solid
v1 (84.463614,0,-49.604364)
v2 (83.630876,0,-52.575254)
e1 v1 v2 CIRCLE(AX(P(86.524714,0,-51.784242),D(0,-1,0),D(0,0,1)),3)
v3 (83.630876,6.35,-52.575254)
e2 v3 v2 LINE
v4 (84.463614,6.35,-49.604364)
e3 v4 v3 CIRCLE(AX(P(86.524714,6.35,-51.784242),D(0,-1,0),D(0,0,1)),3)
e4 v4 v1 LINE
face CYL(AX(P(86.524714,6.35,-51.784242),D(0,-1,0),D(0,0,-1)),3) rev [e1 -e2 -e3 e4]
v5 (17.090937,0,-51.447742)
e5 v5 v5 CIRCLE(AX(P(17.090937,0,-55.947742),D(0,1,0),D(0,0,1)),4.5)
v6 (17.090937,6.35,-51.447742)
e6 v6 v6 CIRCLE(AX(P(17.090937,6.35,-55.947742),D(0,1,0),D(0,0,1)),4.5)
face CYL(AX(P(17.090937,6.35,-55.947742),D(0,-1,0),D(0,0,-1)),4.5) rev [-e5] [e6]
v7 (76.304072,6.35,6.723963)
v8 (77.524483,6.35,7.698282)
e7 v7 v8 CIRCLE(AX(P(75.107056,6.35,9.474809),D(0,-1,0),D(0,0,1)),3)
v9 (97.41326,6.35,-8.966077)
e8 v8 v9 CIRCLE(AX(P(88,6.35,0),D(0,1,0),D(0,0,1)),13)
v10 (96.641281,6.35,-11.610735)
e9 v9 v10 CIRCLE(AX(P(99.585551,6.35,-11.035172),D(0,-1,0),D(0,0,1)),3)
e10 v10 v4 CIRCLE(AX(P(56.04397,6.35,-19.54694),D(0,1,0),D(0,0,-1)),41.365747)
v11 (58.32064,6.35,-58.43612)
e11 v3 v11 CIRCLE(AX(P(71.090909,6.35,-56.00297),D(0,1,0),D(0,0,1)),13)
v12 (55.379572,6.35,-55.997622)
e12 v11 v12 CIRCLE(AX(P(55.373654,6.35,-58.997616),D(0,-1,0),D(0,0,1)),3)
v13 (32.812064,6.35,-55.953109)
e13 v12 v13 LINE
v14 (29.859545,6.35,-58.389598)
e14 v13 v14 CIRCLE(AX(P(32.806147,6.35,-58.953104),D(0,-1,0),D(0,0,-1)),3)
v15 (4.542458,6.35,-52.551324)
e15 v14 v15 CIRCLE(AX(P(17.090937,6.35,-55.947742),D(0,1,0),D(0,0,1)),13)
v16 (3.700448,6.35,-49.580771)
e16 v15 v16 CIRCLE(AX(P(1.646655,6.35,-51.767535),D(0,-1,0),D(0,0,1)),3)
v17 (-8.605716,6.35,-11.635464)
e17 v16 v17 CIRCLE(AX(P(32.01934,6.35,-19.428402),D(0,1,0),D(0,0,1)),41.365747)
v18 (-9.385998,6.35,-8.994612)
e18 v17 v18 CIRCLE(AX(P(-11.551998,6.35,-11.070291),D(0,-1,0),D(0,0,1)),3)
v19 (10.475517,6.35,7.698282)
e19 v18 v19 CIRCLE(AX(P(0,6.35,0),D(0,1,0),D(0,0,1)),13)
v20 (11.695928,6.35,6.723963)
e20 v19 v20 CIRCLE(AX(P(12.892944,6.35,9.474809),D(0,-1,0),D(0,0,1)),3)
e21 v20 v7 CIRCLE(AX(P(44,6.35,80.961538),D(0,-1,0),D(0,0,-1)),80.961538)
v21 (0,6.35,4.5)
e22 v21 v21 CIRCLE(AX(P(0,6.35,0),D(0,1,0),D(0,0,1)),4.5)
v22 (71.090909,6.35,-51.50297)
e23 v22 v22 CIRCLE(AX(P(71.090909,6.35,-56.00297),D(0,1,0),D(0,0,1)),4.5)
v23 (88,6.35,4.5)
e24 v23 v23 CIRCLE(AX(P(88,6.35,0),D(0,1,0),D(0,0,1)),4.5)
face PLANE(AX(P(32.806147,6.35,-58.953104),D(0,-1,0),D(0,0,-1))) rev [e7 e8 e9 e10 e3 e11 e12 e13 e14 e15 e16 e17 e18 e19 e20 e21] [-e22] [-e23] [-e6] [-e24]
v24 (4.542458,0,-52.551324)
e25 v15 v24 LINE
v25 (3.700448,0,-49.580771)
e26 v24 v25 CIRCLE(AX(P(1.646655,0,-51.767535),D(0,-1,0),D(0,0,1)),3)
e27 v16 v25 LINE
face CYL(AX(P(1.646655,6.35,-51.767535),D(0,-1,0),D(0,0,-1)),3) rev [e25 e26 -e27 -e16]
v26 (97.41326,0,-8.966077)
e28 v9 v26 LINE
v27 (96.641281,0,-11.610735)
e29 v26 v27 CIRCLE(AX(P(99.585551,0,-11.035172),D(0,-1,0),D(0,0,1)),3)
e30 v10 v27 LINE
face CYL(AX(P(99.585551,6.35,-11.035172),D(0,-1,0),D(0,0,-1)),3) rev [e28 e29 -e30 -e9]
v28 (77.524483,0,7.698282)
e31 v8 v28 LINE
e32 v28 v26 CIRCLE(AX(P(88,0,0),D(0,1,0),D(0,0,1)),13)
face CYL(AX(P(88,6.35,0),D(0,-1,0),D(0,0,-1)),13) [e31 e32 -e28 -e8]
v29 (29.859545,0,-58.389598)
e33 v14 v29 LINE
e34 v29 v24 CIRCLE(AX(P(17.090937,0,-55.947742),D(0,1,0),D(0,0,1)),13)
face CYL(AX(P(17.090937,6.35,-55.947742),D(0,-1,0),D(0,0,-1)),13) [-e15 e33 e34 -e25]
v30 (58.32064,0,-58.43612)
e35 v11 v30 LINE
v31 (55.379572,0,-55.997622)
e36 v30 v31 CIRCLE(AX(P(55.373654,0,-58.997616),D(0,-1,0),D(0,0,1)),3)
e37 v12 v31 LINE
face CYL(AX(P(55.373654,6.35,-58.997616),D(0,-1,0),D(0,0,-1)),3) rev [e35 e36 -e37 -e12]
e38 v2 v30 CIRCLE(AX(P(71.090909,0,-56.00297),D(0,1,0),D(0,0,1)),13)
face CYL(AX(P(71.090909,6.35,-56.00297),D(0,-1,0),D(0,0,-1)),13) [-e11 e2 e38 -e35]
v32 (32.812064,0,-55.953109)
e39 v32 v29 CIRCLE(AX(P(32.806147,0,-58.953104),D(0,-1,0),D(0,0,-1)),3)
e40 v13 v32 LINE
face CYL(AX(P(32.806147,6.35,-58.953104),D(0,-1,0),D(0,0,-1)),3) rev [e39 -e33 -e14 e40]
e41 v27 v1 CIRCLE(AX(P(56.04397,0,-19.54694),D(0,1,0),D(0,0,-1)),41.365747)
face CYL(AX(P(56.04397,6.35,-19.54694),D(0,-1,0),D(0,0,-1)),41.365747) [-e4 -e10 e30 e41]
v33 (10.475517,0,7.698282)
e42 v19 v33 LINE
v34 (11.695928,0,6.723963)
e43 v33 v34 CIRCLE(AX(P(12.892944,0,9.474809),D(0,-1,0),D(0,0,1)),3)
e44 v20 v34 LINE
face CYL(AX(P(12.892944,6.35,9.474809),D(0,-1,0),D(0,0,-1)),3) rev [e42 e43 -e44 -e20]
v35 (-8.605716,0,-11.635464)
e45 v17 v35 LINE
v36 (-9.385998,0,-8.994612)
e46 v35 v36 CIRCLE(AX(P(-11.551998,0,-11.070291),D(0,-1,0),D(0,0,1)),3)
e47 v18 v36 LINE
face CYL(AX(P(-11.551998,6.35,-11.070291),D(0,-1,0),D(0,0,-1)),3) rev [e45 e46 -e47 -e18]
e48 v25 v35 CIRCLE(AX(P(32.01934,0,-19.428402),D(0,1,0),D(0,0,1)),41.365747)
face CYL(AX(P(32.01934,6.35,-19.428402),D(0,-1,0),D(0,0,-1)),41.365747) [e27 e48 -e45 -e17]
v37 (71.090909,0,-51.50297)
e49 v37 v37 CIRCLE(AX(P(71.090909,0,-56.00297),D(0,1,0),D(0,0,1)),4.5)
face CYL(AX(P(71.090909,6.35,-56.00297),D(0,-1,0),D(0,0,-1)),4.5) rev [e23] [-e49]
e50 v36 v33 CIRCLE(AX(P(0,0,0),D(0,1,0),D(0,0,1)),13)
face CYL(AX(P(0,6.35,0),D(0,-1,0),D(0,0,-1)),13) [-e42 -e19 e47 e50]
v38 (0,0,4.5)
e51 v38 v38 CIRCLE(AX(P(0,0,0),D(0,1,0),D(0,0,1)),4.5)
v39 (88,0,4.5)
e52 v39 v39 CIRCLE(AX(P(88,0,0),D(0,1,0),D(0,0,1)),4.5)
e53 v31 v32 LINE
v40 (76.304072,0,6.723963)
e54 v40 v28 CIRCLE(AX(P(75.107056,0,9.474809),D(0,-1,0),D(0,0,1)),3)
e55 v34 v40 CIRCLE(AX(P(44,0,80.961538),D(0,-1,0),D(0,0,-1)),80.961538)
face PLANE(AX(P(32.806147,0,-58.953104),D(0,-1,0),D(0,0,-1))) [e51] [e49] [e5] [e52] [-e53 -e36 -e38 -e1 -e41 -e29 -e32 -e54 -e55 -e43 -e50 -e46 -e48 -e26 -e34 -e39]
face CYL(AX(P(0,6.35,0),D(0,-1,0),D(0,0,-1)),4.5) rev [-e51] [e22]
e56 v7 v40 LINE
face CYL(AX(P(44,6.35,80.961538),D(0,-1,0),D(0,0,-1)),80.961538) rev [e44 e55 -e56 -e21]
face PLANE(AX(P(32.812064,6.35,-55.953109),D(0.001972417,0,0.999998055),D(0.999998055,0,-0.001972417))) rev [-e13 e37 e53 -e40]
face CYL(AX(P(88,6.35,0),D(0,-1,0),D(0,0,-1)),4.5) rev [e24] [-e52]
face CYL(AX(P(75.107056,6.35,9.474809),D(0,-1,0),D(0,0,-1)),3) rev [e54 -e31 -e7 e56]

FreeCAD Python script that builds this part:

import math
import FreeCAD as App
import Part
import Sketcher

doc = App.newDocument("Part")
body = doc.addObject("PartDesign::Body", "Body")

# Sketch on XZ plane
sketch1 = doc.addObject("Sketcher::SketchObject", "Sketch")
body.addObject(sketch1)
sketch1.AttachmentSupport = (doc.XZ_Plane, [""])
sketch1.MapMode = "FlatFace"
sketch1.addGeometry(Part.LineSegment(App.Vector(55.4, -56, 0), App.Vector(32.8, -56, 0)), False)
sketch1.addGeometry(Part.ArcOfCircle(Part.Circle(App.Vector(32.8, -59, 0), App.Vector(0, 0, 1), 3), math.radians(90), math.radians(169)), False)
sketch1.addGeometry(Part.ArcOfCircle(Part.Circle(App.Vector(17.1, -55.9, 0), App.Vector(0, 0, 1), 13), math.radians(165), math.radians(349)), False)
sketch1.addGeometry(Part.ArcOfCircle(Part.Circle(App.Vector(1.6, -51.8, 0), App.Vector(0, 0, 1), 3), math.radians(-15), math.radians(47)), False)
sketch1.addGeometry(Part.ArcOfCircle(Part.Circle(App.Vector(32, -19.4, 0), App.Vector(0, 0, 1), 41.4), math.radians(169), math.radians(227)), False)
sketch1.addGeometry(Part.ArcOfCircle(Part.Circle(App.Vector(-11.6, -11.1, 0), App.Vector(0, 0, 1), 3), math.radians(-11), math.radians(44)), False)
sketch1.addGeometry(Part.ArcOfCircle(Part.Circle(App.Vector(0, 0, 0), App.Vector(0, 0, 1), 13), math.radians(36), math.radians(224)), False)
sketch1.addGeometry(Part.ArcOfCircle(Part.Circle(App.Vector(12.9, 9.5, 0), App.Vector(0, 0, 1), 3), math.radians(-144), math.radians(-114)), False)
sketch1.addGeometry(Part.ArcOfCircle(Part.Circle(App.Vector(44, 81, 0), App.Vector(0, 0, 1), 81), math.radians(-114), math.radians(-66)), False)
sketch1.addGeometry(Part.ArcOfCircle(Part.Circle(App.Vector(75.1, 9.5, 0), App.Vector(0, 0, 1), 3), math.radians(-66), math.radians(-36)), False)
sketch1.addGeometry(Part.ArcOfCircle(Part.Circle(App.Vector(88, 0, 0), App.Vector(0, 0, 1), 13), math.radians(-44), math.radians(144)), False)
sketch1.addGeometry(Part.ArcOfCircle(Part.Circle(App.Vector(99.6, -11, 0), App.Vector(0, 0, 1), 3), math.radians(136), math.radians(191)), False)
sketch1.addGeometry(Part.ArcOfCircle(Part.Circle(App.Vector(56, -19.5, 0), App.Vector(0, 0, 1), 41.4), math.radians(-47), math.radians(11)), False)
sketch1.addGeometry(Part.ArcOfCircle(Part.Circle(App.Vector(86.5, -51.8, 0), App.Vector(0, 0, 1), 3), math.radians(133), math.radians(195)), False)
sketch1.addGeometry(Part.ArcOfCircle(Part.Circle(App.Vector(71.1, -56, 0), App.Vector(0, 0, 1), 13), math.radians(-169), math.radians(15)), False)
sketch1.addGeometry(Part.ArcOfCircle(Part.Circle(App.Vector(55.4, -59, 0), App.Vector(0, 0, 1), 3), math.radians(11), math.radians(90)), False)
sketch1.addGeometry(Part.Circle(App.Vector(88, 0, 0), App.Vector(0, 0, 1), 4.5), False)
sketch1.addGeometry(Part.Circle(App.Vector(0, 0, 0), App.Vector(0, 0, 1), 4.5), False)
sketch1.addGeometry(Part.Circle(App.Vector(71.1, -56, 0), App.Vector(0, 0, 1), 4.5), False)
sketch1.addGeometry(Part.Circle(App.Vector(17.1, -55.9, 0), App.Vector(0, 0, 1), 4.5), False)
sketch1.addConstraint(Sketcher.Constraint("Tangent", 0, 2, 1, 1))
sketch1.addConstraint(Sketcher.Constraint("Tangent", 1, 2, 2, 2))
sketch1.addConstraint(Sketcher.Constraint("Tangent", 2, 1, 3, 1))
sketch1.addConstraint(Sketcher.Constraint("Tangent", 3, 2, 4, 2))
sketch1.addConstraint(Sketcher.Constraint("Tangent", 4, 1, 5, 1))
sketch1.addConstraint(Sketcher.Constraint("Tangent", 5, 2, 6, 2))
sketch1.addConstraint(Sketcher.Constraint("Tangent", 6, 1, 7, 1))
sketch1.addConstraint(Sketcher.Constraint("Tangent", 7, 2, 8, 1))
sketch1.addConstraint(Sketcher.Constraint("Tangent", 8, 2, 9, 1))
sketch1.addConstraint(Sketcher.Constraint("Tangent", 9, 2, 10, 2))
sketch1.addConstraint(Sketcher.Constraint("Tangent", 10, 1, 11, 1))
sketch1.addConstraint(Sketcher.Constraint("Tangent", 11, 2, 12, 2))
sketch1.addConstraint(Sketcher.Constraint("Tangent", 12, 1, 13, 1))
sketch1.addConstraint(Sketcher.Constraint("Tangent", 13, 2, 14, 2))
sketch1.addConstraint(Sketcher.Constraint("Tangent", 14, 1, 15, 1))
sketch1.addConstraint(Sketcher.Constraint("Tangent", 15, 2, 0, 1))
sketch1.addConstraint(Sketcher.Constraint("Coincident", 6, 3, -1, 1))
sketch1.addConstraint(Sketcher.Constraint("Coincident", 17, 3, -1, 1))
sketch1.addConstraint(Sketcher.Constraint("Coincident", 16, 3, 10, 3))
sketch1.addConstraint(Sketcher.Constraint("Coincident", 18, 3, 14, 3))
sketch1.addConstraint(Sketcher.Constraint("Coincident", 19, 3, 2, 3))
sketch1.addConstraint(Sketcher.Constraint("Equal", 1, 3))
sketch1.addConstraint(Sketcher.Constraint("Equal", 3, 5))
sketch1.addConstraint(Sketcher.Constraint("Equal", 2, 6))
sketch1.addConstraint(Sketcher.Constraint("Equal", 5, 7))
sketch1.addConstraint(Sketcher.Constraint("Equal", 7, 9))
sketch1.addConstraint(Sketcher.Constraint("Equal", 6, 10))
sketch1.addConstraint(Sketcher.Constraint("Equal", 9, 11))
sketch1.addConstraint(Sketcher.Constraint("Equal", 4, 12))
sketch1.addConstraint(Sketcher.Constraint("Equal", 11, 13))
sketch1.addConstraint(Sketcher.Constraint("Equal", 10, 14))
sketch1.addConstraint(Sketcher.Constraint("Equal", 13, 15))
sketch1.addConstraint(Sketcher.Constraint("Equal", 16, 17))
sketch1.addConstraint(Sketcher.Constraint("Equal", 17, 18))
sketch1.addConstraint(Sketcher.Constraint("Equal", 18, 19))
sketch1.addConstraint(Sketcher.Constraint("PointOnObject", 10, 3, -1))
sketch1.addConstraint(Sketcher.Constraint("Horizontal", 7, 3, 9, 3))
sketch1.addConstraint(Sketcher.Constraint("Diameter", 16, 9.0))
sketch1.addConstraint(Sketcher.Constraint("Radius", 1, 3.0))
sketch1.addConstraint(Sketcher.Constraint("Radius", 2, 13.0))
sketch1.addConstraint(Sketcher.Constraint("DistanceX", -1, 1, 8, 3, 44.0))
sketch1.addConstraint(Sketcher.Constraint("Radius", 8, 80.961538))
sketch1.addConstraint(Sketcher.Constraint("DistanceX", 5, 2, -1, 1, 9.385998))
sketch1.addConstraint(Sketcher.Constraint("Radius", 4, 41.365747))
sketch1.addConstraint(Sketcher.Constraint("DistanceY", 1, 2, -1, 1, 58.389598))
sketch1.addConstraint(Sketcher.Constraint("DistanceY", 1, 3, 4, 3, 39.524701))
sketch1.addConstraint(Sketcher.Constraint("DistanceY", 5, 3, 7, 3, 20.5451))
sketch1.addConstraint(Sketcher.Constraint("DistanceY", 14, 3, 11, 3, 44.967798))
sketch1.addConstraint(Sketcher.Constraint("DistanceX", 1, 2, 1, 3, 2.946602))
sketch1.addConstraint(Sketcher.Constraint("Distance", 0, 22.567552))
sketch1.addConstraint(Sketcher.Constraint("DistanceX", -1, 1, 11, 3, 99.585551))
sketch1.addConstraint(Sketcher.Constraint("DistanceX", -1, 1, 12, 3, 56.04397))
sketch1.addConstraint(Sketcher.Constraint("DistanceX", -1, 1, 14, 3, 71.090909))
sketch1.addConstraint(Sketcher.Constraint("DistanceY", 3, 2, -1, 1, 49.580771))
pad1 = doc.addObject("PartDesign::Pad", "Pad")
body.addObject(pad1)
pad1.Profile = sketch1
pad1.Length = 6.35
pad1.Reversed = True

doc.recompute()
